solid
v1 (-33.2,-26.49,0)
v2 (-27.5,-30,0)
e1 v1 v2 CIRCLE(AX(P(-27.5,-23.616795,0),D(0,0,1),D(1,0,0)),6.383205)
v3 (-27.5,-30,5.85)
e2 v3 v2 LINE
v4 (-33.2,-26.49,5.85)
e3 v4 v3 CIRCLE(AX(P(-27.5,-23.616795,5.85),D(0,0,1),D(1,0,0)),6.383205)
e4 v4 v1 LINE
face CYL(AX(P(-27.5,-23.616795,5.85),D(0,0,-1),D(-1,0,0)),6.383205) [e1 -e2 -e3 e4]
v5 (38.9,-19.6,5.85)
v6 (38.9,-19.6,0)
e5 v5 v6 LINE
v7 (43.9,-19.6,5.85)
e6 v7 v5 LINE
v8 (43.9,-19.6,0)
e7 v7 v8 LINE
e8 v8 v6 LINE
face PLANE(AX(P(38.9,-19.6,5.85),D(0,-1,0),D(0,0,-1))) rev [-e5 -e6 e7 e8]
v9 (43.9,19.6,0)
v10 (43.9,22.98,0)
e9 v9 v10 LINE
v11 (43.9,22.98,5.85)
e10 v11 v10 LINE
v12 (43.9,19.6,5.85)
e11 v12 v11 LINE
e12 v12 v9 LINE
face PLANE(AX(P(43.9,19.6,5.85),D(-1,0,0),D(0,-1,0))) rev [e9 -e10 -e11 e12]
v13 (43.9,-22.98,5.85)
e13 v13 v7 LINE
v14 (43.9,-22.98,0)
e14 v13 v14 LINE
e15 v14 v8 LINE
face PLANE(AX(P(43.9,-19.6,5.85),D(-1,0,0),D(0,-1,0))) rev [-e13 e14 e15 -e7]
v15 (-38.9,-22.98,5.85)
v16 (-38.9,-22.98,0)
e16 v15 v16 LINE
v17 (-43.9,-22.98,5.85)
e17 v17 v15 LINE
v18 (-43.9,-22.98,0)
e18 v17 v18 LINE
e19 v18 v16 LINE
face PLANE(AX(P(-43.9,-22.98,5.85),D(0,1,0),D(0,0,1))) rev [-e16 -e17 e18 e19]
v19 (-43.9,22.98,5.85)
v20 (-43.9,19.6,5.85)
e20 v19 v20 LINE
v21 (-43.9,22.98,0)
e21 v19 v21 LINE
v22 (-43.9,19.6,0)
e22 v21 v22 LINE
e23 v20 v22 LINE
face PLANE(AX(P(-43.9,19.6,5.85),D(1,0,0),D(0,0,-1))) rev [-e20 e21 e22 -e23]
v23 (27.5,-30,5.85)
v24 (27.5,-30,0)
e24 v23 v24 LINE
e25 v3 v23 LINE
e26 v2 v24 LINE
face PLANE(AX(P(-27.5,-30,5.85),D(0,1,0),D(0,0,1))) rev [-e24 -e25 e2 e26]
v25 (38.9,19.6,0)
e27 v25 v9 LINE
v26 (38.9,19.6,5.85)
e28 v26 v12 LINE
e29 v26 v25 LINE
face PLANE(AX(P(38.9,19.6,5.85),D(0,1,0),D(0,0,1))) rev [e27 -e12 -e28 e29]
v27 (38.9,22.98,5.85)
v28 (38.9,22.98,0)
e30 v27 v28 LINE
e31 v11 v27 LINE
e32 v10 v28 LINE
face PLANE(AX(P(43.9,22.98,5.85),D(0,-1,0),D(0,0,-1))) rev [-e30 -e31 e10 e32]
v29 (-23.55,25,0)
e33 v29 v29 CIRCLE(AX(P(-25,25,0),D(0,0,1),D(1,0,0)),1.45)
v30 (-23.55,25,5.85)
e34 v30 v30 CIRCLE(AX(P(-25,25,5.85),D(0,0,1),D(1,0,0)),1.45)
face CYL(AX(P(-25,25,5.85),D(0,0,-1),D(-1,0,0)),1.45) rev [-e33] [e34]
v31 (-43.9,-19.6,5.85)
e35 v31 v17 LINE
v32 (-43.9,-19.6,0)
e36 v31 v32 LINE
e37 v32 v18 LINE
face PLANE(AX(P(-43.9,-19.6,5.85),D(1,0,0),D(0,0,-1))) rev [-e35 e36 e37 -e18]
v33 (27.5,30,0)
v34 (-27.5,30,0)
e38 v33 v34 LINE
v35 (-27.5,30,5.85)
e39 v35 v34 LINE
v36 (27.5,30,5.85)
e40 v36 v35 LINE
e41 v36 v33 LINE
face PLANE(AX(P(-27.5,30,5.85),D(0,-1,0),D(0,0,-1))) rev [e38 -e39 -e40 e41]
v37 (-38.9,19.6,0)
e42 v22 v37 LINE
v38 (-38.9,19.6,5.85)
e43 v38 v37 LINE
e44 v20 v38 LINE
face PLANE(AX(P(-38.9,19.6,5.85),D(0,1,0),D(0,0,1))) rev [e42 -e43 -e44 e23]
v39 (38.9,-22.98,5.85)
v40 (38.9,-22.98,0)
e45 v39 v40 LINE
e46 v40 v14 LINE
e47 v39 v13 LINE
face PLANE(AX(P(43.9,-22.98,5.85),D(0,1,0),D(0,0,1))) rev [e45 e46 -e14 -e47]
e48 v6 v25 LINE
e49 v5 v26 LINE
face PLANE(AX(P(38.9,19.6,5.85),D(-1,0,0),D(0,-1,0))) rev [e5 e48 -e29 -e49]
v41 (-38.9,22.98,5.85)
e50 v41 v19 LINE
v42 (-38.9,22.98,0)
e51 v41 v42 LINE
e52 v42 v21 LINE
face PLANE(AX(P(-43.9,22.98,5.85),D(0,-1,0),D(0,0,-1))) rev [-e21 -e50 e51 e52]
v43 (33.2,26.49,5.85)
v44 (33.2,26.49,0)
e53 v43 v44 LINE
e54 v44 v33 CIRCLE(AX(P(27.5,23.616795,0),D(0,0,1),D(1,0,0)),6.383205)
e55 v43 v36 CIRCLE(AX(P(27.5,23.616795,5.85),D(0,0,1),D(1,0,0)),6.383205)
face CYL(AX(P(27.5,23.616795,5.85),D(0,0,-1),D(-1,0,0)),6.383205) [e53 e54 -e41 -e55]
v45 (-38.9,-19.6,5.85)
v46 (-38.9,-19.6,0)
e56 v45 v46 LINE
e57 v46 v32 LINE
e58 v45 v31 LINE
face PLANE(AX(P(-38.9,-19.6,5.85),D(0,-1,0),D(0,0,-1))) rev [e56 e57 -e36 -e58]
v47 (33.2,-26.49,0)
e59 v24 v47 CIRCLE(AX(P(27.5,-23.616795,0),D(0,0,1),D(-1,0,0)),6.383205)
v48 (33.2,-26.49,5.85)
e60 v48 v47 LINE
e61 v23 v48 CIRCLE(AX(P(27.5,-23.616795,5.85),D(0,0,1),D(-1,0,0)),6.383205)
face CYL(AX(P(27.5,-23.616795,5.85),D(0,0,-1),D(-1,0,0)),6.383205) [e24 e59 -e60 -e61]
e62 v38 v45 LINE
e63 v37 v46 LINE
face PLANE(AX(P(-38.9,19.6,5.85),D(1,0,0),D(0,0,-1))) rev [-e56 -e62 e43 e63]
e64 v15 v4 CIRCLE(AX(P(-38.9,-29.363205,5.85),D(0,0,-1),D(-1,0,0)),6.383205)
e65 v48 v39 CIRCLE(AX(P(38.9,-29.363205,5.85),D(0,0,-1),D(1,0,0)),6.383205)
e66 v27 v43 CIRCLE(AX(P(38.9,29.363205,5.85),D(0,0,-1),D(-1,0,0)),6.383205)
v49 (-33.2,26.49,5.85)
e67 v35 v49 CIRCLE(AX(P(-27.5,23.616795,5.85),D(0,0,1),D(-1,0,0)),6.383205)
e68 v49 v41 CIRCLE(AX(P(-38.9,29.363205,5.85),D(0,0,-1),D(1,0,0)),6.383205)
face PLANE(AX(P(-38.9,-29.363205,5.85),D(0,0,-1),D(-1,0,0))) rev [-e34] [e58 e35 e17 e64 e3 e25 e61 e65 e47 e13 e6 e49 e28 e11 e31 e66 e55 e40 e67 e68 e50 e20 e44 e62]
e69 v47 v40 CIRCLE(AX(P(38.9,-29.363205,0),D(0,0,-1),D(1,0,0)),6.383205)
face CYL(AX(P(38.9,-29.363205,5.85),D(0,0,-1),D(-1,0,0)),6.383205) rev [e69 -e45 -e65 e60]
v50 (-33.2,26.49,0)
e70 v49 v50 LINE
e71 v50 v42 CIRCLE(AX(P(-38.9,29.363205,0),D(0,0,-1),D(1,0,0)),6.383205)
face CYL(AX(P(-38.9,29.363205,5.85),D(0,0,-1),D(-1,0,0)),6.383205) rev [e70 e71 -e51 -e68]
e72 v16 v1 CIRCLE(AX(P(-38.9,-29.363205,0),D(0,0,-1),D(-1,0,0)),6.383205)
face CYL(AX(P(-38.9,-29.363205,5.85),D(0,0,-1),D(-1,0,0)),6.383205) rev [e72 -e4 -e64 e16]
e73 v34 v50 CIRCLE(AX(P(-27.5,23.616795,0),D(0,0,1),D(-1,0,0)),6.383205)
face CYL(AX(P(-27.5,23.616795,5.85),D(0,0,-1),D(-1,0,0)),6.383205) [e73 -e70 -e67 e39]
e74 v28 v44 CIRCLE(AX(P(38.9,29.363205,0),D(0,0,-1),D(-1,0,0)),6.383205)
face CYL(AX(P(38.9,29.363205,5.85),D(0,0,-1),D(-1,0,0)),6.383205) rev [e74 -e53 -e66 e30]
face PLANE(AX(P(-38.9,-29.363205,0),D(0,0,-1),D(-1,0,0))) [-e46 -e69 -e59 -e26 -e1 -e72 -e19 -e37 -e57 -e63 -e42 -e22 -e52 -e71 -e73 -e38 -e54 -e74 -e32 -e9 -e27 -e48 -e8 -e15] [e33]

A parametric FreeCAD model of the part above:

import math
import FreeCAD as App
import Part
import Sketcher
Q = App.Units.Quantity

doc = App.newDocument("Part")
body = doc.addObject("PartDesign::Body", "Body")

sketch1 = doc.addObject("Sketcher::SketchObject", "Sketch")
body.addObject(sketch1)
sketch1.AttachmentSupport = (doc.XY_Plane, [""])
sketch1.MapMode = "FlatFace"
sketch1.addGeometry(Part.LineSegment(App.Vector(-38.9, 19.6, 0), App.Vector(-38.9, -19.6, 0)), False)
sketch1.addGeometry(Part.LineSegment(App.Vector(-38.9, -19.6, 0), App.Vector(-43.9, -19.6, 0)), False)
sketch1.addGeometry(Part.LineSegment(App.Vector(-43.9, -19.6, 0), App.Vector(-43.9, -22.98, 0)), False)
sketch1.addGeometry(Part.LineSegment(App.Vector(-43.9, -22.98, 0), App.Vector(-38.9, -22.98, 0)), False)
sketch1.addGeometry(Part.ArcOfCircle(Part.Circle(App.Vector(-38.9, -29.363205, 0), App.Vector(0, 0, 1), 6.383205), math.radians(26.751351), math.radians(90)), False)
sketch1.addGeometry(Part.ArcOfCircle(Part.Circle(App.Vector(-27.5, -23.616795, 0), App.Vector(0, 0, 1), 6.383205), math.radians(-153.248649), math.radians(-90)), False)
sketch1.addGeometry(Part.LineSegment(App.Vector(-27.5, -30, 0), App.Vector(27.5, -30, 0)), False)
sketch1.addGeometry(Part.ArcOfCircle(Part.Circle(App.Vector(27.5, -23.616795, 0), App.Vector(0, 0, 1), 6.383205), math.radians(-90), math.radians(-26.751351)), False)
sketch1.addGeometry(Part.ArcOfCircle(Part.Circle(App.Vector(38.9, -29.363205, 0), App.Vector(0, 0, 1), 6.383205), math.radians(90), math.radians(153.248649)), False)
sketch1.addGeometry(Part.LineSegment(App.Vector(38.9, -22.98, 0), App.Vector(43.9, -22.98, 0)), False)
sketch1.addGeometry(Part.LineSegment(App.Vector(43.9, -22.98, 0), App.Vector(43.9, -19.6, 0)), False)
sketch1.addGeometry(Part.LineSegment(App.Vector(43.9, -19.6, 0), App.Vector(38.9, -19.6, 0)), False)
sketch1.addGeometry(Part.LineSegment(App.Vector(38.9, -19.6, 0), App.Vector(38.9, 19.6, 0)), False)
sketch1.addGeometry(Part.LineSegment(App.Vector(38.9, 19.6, 0), App.Vector(43.9, 19.6, 0)), False)
sketch1.addGeometry(Part.LineSegment(App.Vector(43.9, 19.6, 0), App.Vector(43.9, 22.98, 0)), False)
sketch1.addGeometry(Part.LineSegment(App.Vector(43.9, 22.98, 0), App.Vector(38.9, 22.98, 0)), False)
sketch1.addGeometry(Part.ArcOfCircle(Part.Circle(App.Vector(38.9, 29.363205, 0), App.Vector(0, 0, 1), 6.383205), math.radians(-153.248649), math.radians(-90)), False)
sketch1.addGeometry(Part.ArcOfCircle(Part.Circle(App.Vector(27.5, 23.616795, 0), App.Vector(0, 0, 1), 6.383205), math.radians(26.751351), math.radians(90)), False)
sketch1.addGeometry(Part.LineSegment(App.Vector(27.5, 30, 0), App.Vector(-27.5, 30, 0)), False)
sketch1.addGeometry(Part.ArcOfCircle(Part.Circle(App.Vector(-27.5, 23.616795, 0), App.Vector(0, 0, 1), 6.383205), math.radians(90), math.radians(153.248649)), False)
sketch1.addGeometry(Part.ArcOfCircle(Part.Circle(App.Vector(-38.9, 29.363205, 0), App.Vector(0, 0, 1), 6.383205), math.radians(-90), math.radians(-26.751351)), False)
sketch1.addGeometry(Part.LineSegment(App.Vector(-38.9, 22.98, 0), App.Vector(-43.9, 22.98, 0)), False)
sketch1.addGeometry(Part.LineSegment(App.Vector(-43.9, 22.98, 0), App.Vector(-43.9, 19.6, 0)), False)
sketch1.addGeometry(Part.LineSegment(App.Vector(-43.9, 19.6, 0), App.Vector(-38.9, 19.6, 0)), False)
sketch1.addGeometry(Part.Circle(App.Vector(-25, 25, 0), App.Vector(0, 0, 1), 1.45), False)
sketch1.addConstraint(Sketcher.Constraint("Coincident", 0, 2, 1, 1))
sketch1.addConstraint(Sketcher.Constraint("Coincident", 1, 2, 2, 1))
sketch1.addConstraint(Sketcher.Constraint("Coincident", 2, 2, 3, 1))
sketch1.addConstraint(Sketcher.Constraint("Tangent", 3, 2, 4, 2))
sketch1.addConstraint(Sketcher.Constraint("Tangent", 4, 1, 5, 1))
sketch1.addConstraint(Sketcher.Constraint("Tangent", 5, 2, 6, 1))
sketch1.addConstraint(Sketcher.Constraint("Tangent", 6, 2, 7, 1))
sketch1.addConstraint(Sketcher.Constraint("Tangent", 7, 2, 8, 2))
sketch1.addConstraint(Sketcher.Constraint("Tangent", 8, 1, 9, 1))
sketch1.addConstraint(Sketcher.Constraint("Coincident", 9, 2, 10, 1))
sketch1.addConstraint(Sketcher.Constraint("Coincident", 10, 2, 11, 1))
sketch1.addConstraint(Sketcher.Constraint("Coincident", 11, 2, 12, 1))
sketch1.addConstraint(Sketcher.Constraint("Coincident", 12, 2, 13, 1))
sketch1.addConstraint(Sketcher.Constraint("Coincident", 13, 2, 14, 1))
sketch1.addConstraint(Sketcher.Constraint("Coincident", 14, 2, 15, 1))
sketch1.addConstraint(Sketcher.Constraint("Tangent", 15, 2, 16, 2))
sketch1.addConstraint(Sketcher.Constraint("Tangent", 16, 1, 17, 1))
sketch1.addConstraint(Sketcher.Constraint("Tangent", 17, 2, 18, 1))
sketch1.addConstraint(Sketcher.Constraint("Tangent", 18, 2, 19, 1))
sketch1.addConstraint(Sketcher.Constraint("Tangent", 19, 2, 20, 2))
sketch1.addConstraint(Sketcher.Constraint("Tangent", 20, 1, 21, 1))
sketch1.addConstraint(Sketcher.Constraint("Coincident", 21, 2, 22, 1))
sketch1.addConstraint(Sketcher.Constraint("Coincident", 22, 2, 23, 1))
sketch1.addConstraint(Sketcher.Constraint("Coincident", 23, 2, 0, 1))
sketch1.addConstraint(Sketcher.Constraint("Vertical", 0))
sketch1.addConstraint(Sketcher.Constraint("Horizontal", 1))
sketch1.addConstraint(Sketcher.Constraint("Vertical", 2))
sketch1.addConstraint(Sketcher.Constraint("Horizontal", 3))
sketch1.addConstraint(Sketcher.Constraint("Horizontal", 6))
sketch1.addConstraint(Sketcher.Constraint("Horizontal", 9))
sketch1.addConstraint(Sketcher.Constraint("Vertical", 10))
sketch1.addConstraint(Sketcher.Constraint("Horizontal", 11))
sketch1.addConstraint(Sketcher.Constraint("Vertical", 12))
sketch1.addConstraint(Sketcher.Constraint("Horizontal", 13))
sketch1.addConstraint(Sketcher.Constraint("Vertical", 14))
sketch1.addConstraint(Sketcher.Constraint("Horizontal", 15))
sketch1.addConstraint(Sketcher.Constraint("Horizontal", 18))
sketch1.addConstraint(Sketcher.Constraint("Horizontal", 21))
sketch1.addConstraint(Sketcher.Constraint("Vertical", 22))
sketch1.addConstraint(Sketcher.Constraint("Horizontal", 23))
sketch1.addConstraint(Sketcher.Constraint("Equal", 4, 5))
sketch1.addConstraint(Sketcher.Constraint("Equal", 5, 7))
sketch1.addConstraint(Sketcher.Constraint("Equal", 7, 8))
sketch1.addConstraint(Sketcher.Constraint("Equal", 8, 16))
sketch1.addConstraint(Sketcher.Constraint("Equal", 16, 17))
sketch1.addConstraint(Sketcher.Constraint("Equal", 17, 19))
sketch1.addConstraint(Sketcher.Constraint("Equal", 19, 20))
sketch1.addConstraint(Sketcher.Constraint("Symmetric", 4, 3, 16, 3, -1, 1))
sketch1.addConstraint(Sketcher.Constraint("Symmetric", 7, 3, 19, 3, -1, 1))
sketch1.addConstraint(Sketcher.Constraint("Symmetric", 0, 2, 12, 2, -1, 1))
sketch1.addConstraint(Sketcher.Constraint("Symmetric", 9, 2, 21, 2, -1, 1))
sketch1.addConstraint(Sketcher.Constraint("Symmetric", 4, 3, 8, 3, -2))
sketch1.addConstraint(Sketcher.Constraint("Symmetric", 1, 2, 10, 2, -2))
sketch1.addConstraint(Sketcher.Constraint("Symmetric", 13, 2, 22, 2, -2))
sketch1.addConstraint(Sketcher.Constraint("Vertical", 20, 3, 0, 2))
sketch1.addConstraint(Sketcher.Constraint("Diameter", 24, Q("2.9 mm")))
sketch1.addConstraint(Sketcher.Constraint("DistanceX", 1, 2, 1, 1, Q("5 mm")))
sketch1.addConstraint(Sketcher.Constraint("DistanceX", 6, 1, 6, 2, Q("55 mm")))
sketch1.addConstraint(Sketcher.Constraint("DistanceY", 0, 2, 0, 1, Q("39.2 mm")))
sketch1.addConstraint(Sketcher.Constraint("DistanceX", 24, 3, -1, 1, Q("25 mm")))
sketch1.addConstraint(Sketcher.Constraint("DistanceY", -1, 1, 24, 3, Q("25 mm")))
sketch1.addConstraint(Sketcher.Constraint("DistanceY", 5, 2, -1, 1, Q("30 mm")))
sketch1.addConstraint(Sketcher.Constraint("DistanceY", 2, 2, 2, 1, Q("3.38 mm")))
sketch1.addConstraint(Sketcher.Constraint("DistanceX", 4, 3, -1, 1, Q("38.9 mm")))
pad1 = doc.addObject("PartDesign::Pad", "Pad")
body.addObject(pad1)
pad1.Profile = sketch1
pad1.Length = 5.85

doc.recompute()
